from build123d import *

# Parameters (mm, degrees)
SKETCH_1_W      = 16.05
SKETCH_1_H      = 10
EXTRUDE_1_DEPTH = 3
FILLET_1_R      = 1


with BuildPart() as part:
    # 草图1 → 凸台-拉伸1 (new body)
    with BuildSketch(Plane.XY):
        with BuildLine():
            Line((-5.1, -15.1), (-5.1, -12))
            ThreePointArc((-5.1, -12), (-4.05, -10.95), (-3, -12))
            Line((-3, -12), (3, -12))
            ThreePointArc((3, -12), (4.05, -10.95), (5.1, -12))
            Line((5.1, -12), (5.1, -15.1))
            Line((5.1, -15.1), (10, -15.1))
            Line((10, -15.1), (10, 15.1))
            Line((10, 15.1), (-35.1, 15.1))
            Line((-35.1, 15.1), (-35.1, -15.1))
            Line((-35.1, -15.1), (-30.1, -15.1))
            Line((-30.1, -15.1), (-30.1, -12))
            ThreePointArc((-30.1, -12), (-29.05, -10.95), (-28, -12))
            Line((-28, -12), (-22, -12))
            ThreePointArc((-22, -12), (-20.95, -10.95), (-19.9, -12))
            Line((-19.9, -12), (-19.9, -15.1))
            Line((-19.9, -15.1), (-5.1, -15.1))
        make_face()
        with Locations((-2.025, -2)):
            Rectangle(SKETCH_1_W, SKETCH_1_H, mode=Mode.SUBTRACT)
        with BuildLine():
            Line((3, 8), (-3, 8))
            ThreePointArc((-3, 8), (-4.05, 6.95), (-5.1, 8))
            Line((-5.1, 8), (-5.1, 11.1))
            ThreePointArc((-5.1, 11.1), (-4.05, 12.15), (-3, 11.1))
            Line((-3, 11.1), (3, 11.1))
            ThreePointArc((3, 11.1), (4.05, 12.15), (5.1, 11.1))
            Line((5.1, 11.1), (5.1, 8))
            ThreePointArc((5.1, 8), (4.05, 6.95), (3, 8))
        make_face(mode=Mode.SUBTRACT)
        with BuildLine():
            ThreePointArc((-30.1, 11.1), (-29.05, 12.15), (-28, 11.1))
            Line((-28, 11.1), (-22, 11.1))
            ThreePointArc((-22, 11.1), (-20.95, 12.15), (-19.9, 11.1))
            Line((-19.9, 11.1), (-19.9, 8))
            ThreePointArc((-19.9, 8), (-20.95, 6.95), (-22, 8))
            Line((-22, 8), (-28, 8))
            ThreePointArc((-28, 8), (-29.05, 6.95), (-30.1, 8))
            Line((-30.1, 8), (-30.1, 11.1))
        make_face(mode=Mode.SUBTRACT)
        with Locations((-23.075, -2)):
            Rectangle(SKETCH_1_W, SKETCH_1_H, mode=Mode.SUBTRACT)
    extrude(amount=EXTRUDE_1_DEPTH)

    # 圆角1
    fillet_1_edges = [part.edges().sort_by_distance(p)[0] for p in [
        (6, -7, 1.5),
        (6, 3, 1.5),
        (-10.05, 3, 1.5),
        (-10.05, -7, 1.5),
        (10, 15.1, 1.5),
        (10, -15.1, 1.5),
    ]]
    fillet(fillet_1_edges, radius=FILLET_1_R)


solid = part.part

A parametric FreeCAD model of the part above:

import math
import FreeCAD as App
import Part
import Sketcher
Q = App.Units.Quantity


def edges_at(feature, points):
    """Names of the edges that pass closest to the given points."""
    edges = feature.Shape.Edges
    near = lambda p: min(range(len(edges)), key=lambda i: edges[i].distToShape(Part.Vertex(*p))[0])
    return sorted({f"Edge{near(p) + 1}" for p in points})

doc = App.newDocument("Part")
body = doc.addObject("PartDesign::Body", "Body")

sketch1 = body.newObject("Sketcher::SketchObject", "Sketch")
sketch1.AttachmentSupport = (doc.getObject("XY_Plane"), [""])
sketch1.MapMode = "FlatFace"
sketch1.addGeometry(Part.LineSegment(App.Vector(-5.1, -15.1, 0), App.Vector(-5.1, -12, 0)), False)
sketch1.addGeometry(Part.ArcOfCircle(Part.Circle(App.Vector(-4, -12, 0), App.Vector(0, 0, 1), 1.1), math.radians(0), math.radians(180)), False)
sketch1.addGeometry(Part.LineSegment(App.Vector(-3, -12, 0), App.Vector(3, -12, 0)), False)
sketch1.addGeometry(Part.ArcOfCircle(Part.Circle(App.Vector(4, -12, 0), App.Vector(0, 0, 1), 1.1), math.radians(0), math.radians(180)), False)
sketch1.addGeometry(Part.LineSegment(App.Vector(5.1, -12, 0), App.Vector(5.1, -15.1, 0)), False)
sketch1.addGeometry(Part.LineSegment(App.Vector(5.1, -15.1, 0), App.Vector(10, -15.1, 0)), False)
sketch1.addGeometry(Part.LineSegment(App.Vector(10, -15.1, 0), App.Vector(10, 15.1, 0)), False)
sketch1.addGeometry(Part.LineSegment(App.Vector(10, 15.1, 0), App.Vector(-35.1, 15.1, 0)), False)
sketch1.addGeometry(Part.LineSegment(App.Vector(-35.1, 15.1, 0), App.Vector(-35.1, -15.1, 0)), False)
sketch1.addGeometry(Part.LineSegment(App.Vector(-35.1, -15.1, 0), App.Vector(-30.1, -15.1, 0)), False)
sketch1.addGeometry(Part.LineSegment(App.Vector(-30.1, -15.1, 0), App.Vector(-30.1, -12, 0)), False)
sketch1.addGeometry(Part.ArcOfCircle(Part.Circle(App.Vector(-29.1, -12, 0), App.Vector(0, 0, 1), 1.1), math.radians(0), math.radians(180)), False)
sketch1.addGeometry(Part.LineSegment(App.Vector(-28, -12, 0), App.Vector(-22, -12, 0)), False)
sketch1.addGeometry(Part.ArcOfCircle(Part.Circle(App.Vector(-20.9, -12, 0), App.Vector(0, 0, 1), 1.1), math.radians(0), math.radians(180)), False)
sketch1.addGeometry(Part.LineSegment(App.Vector(-19.9, -12, 0), App.Vector(-19.9, -15.1, 0)), False)
sketch1.addGeometry(Part.LineSegment(App.Vector(-19.9, -15.1, 0), App.Vector(-5.1, -15.1, 0)), False)
sketch1.addGeometry(Part.LineSegment(App.Vector(-15.1, -7, 0), App.Vector(-31.1, -7, 0)), False)
sketch1.addGeometry(Part.LineSegment(App.Vector(-31.1, -7, 0), App.Vector(-31.1, 3, 0)), False)
sketch1.addGeometry(Part.LineSegment(App.Vector(-31.1, 3, 0), App.Vector(-15.1, 3, 0)), False)
sketch1.addGeometry(Part.LineSegment(App.Vector(-15.1, 3, 0), App.Vector(-15.1, -7, 0)), False)
sketch1.addGeometry(Part.LineSegment(App.Vector(6, -7, 0), App.Vector(-10.1, -7, 0)), False)
sketch1.addGeometry(Part.LineSegment(App.Vector(-10.1, -7, 0), App.Vector(-10.1, 3, 0)), False)
sketch1.addGeometry(Part.LineSegment(App.Vector(-10.1, 3, 0), App.Vector(6, 3, 0)), False)
sketch1.addGeometry(Part.LineSegment(App.Vector(6, 3, 0), App.Vector(6, -7, 0)), False)
sketch1.addGeometry(Part.LineSegment(App.Vector(-30.1, 8, 0), App.Vector(-30.1, 11.1, 0)), False)
sketch1.addGeometry(Part.ArcOfCircle(Part.Circle(App.Vector(-29.1, 11.1, 0), App.Vector(0, 0, 1), 1.1), math.radians(0), math.radians(180)), False)
sketch1.addGeometry(Part.LineSegment(App.Vector(-28, 11.1, 0), App.Vector(-22, 11.1, 0)), False)
sketch1.addGeometry(Part.ArcOfCircle(Part.Circle(App.Vector(-20.9, 11.1, 0), App.Vector(0, 0, 1), 1.1), math.radians(0), math.radians(180)), False)
sketch1.addGeometry(Part.LineSegment(App.Vector(-19.9, 11.1, 0), App.Vector(-19.9, 8, 0)), False)
sketch1.addGeometry(Part.ArcOfCircle(Part.Circle(App.Vector(-20.9, 8, 0), App.Vector(0, 0, 1), 1.1), math.radians(180), math.radians(360)), False)
sketch1.addGeometry(Part.LineSegment(App.Vector(-22, 8, 0), App.Vector(-28, 8, 0)), False)
sketch1.addGeometry(Part.ArcOfCircle(Part.Circle(App.Vector(-29.1, 8, 0), App.Vector(0, 0, 1), 1.1), math.radians(180), math.radians(360)), False)
sketch1.addGeometry(Part.ArcOfCircle(Part.Circle(App.Vector(4, 8, 0), App.Vector(0, 0, 1), 1.1), math.radians(180), math.radians(360)), False)
sketch1.addGeometry(Part.LineSegment(App.Vector(3, 8, 0), App.Vector(-3, 8, 0)), False)
sketch1.addGeometry(Part.ArcOfCircle(Part.Circle(App.Vector(-4, 8, 0), App.Vector(0, 0, 1), 1.1), math.radians(180), math.radians(360)), False)
sketch1.addGeometry(Part.LineSegment(App.Vector(-5.1, 8, 0), App.Vector(-5.1, 11.1, 0)), False)
sketch1.addGeometry(Part.ArcOfCircle(Part.Circle(App.Vector(-4, 11.1, 0), App.Vector(0, 0, 1), 1.1), math.radians(0), math.radians(180)), False)
sketch1.addGeometry(Part.LineSegment(App.Vector(-3, 11.1, 0), App.Vector(3, 11.1, 0)), False)
sketch1.addGeometry(Part.ArcOfCircle(Part.Circle(App.Vector(4, 11.1, 0), App.Vector(0, 0, 1), 1.1), math.radians(0), math.radians(180)), False)
sketch1.addGeometry(Part.LineSegment(App.Vector(5.1, 11.1, 0), App.Vector(5.1, 8, 0)), False)
sketch1.addConstraint(Sketcher.Constraint("Tangent", 0, 2, 1, 2))
sketch1.addConstraint(Sketcher.Constraint("Coincident", 1, 1, 2, 1))
sketch1.addConstraint(Sketcher.Constraint("Coincident", 2, 2, 3, 2))
sketch1.addConstraint(Sketcher.Constraint("Tangent", 3, 1, 4, 1))
sketch1.addConstraint(Sketcher.Constraint("Coincident", 4, 2, 5, 1))
sketch1.addConstraint(Sketcher.Constraint("Coincident", 5, 2, 6, 1))
sketch1.addConstraint(Sketcher.Constraint("Coincident", 6, 2, 7, 1))
sketch1.addConstraint(Sketcher.Constraint("Coincident", 7, 2, 8, 1))
sketch1.addConstraint(Sketcher.Constraint("Coincident", 8, 2, 9, 1))
sketch1.addConstraint(Sketcher.Constraint("Coincident", 9, 2, 10, 1))
sketch1.addConstraint(Sketcher.Constraint("Tangent", 10, 2, 11, 2))
sketch1.addConstraint(Sketcher.Constraint("Coincident", 11, 1, 12, 1))
sketch1.addConstraint(Sketcher.Constraint("Coincident", 12, 2, 13, 2))
sketch1.addConstraint(Sketcher.Constraint("Tangent", 13, 1, 14, 1))
sketch1.addConstraint(Sketcher.Constraint("Coincident", 14, 2, 15, 1))
sketch1.addConstraint(Sketcher.Constraint("Coincident", 15, 2, 0, 1))
sketch1.addConstraint(Sketcher.Constraint("Coincident", 16, 2, 17, 1))
sketch1.addConstraint(Sketcher.Constraint("Coincident", 17, 2, 18, 1))
sketch1.addConstraint(Sketcher.Constraint("Coincident", 18, 2, 19, 1))
sketch1.addConstraint(Sketcher.Constraint("Coincident", 19, 2, 16, 1))
sketch1.addConstraint(Sketcher.Constraint("Coincident", 20, 2, 21, 1))
sketch1.addConstraint(Sketcher.Constraint("Coincident", 21, 2, 22, 1))
sketch1.addConstraint(Sketcher.Constraint("Coincident", 22, 2, 23, 1))
sketch1.addConstraint(Sketcher.Constraint("Coincident", 23, 2, 20, 1))
sketch1.addConstraint(Sketcher.Constraint("Tangent", 24, 2, 25, 2))
sketch1.addConstraint(Sketcher.Constraint("Coincident", 25, 1, 26, 1))
sketch1.addConstraint(Sketcher.Constraint("Coincident", 26, 2, 27, 2))
sketch1.addConstraint(Sketcher.Constraint("Tangent", 27, 1, 28, 1))
sketch1.addConstraint(Sketcher.Constraint("Tangent", 28, 2, 29, 2))
sketch1.addConstraint(Sketcher.Constraint("Coincident", 29, 1, 30, 1))
sketch1.addConstraint(Sketcher.Constraint("Coincident", 30, 2, 31, 2))
sketch1.addConstraint(Sketcher.Constraint("Tangent", 31, 1, 24, 1))
sketch1.addConstraint(Sketcher.Constraint("Coincident", 32, 1, 33, 1))
sketch1.addConstraint(Sketcher.Constraint("Coincident", 33, 2, 34, 2))
sketch1.addConstraint(Sketcher.Constraint("Tangent", 34, 1, 35, 1))
sketch1.addConstraint(Sketcher.Constraint("Tangent", 35, 2, 36, 2))
sketch1.addConstraint(Sketcher.Constraint("Coincident", 36, 1, 37, 1))
sketch1.addConstraint(Sketcher.Constraint("Coincident", 37, 2, 38, 2))
sketch1.addConstraint(Sketcher.Constraint("Tangent", 38, 1, 39, 1))
sketch1.addConstraint(Sketcher.Constraint("Tangent", 39, 2, 32, 2))
sketch1.addConstraint(Sketcher.Constraint("Vertical", 0))
sketch1.addConstraint(Sketcher.Constraint("Horizontal", 2))
sketch1.addConstraint(Sketcher.Constraint("Vertical", 4))
sketch1.addConstraint(Sketcher.Constraint("Horizontal", 5))
sketch1.addConstraint(Sketcher.Constraint("Vertical", 6))
sketch1.addConstraint(Sketcher.Constraint("Horizontal", 7))
sketch1.addConstraint(Sketcher.Constraint("Vertical", 8))
sketch1.addConstraint(Sketcher.Constraint("Horizontal", 9))
sketch1.addConstraint(Sketcher.Constraint("Vertical", 10))
sketch1.addConstraint(Sketcher.Constraint("Horizontal", 12))
sketch1.addConstraint(Sketcher.Constraint("Vertical", 14))
sketch1.addConstraint(Sketcher.Constraint("Horizontal", 15))
sketch1.addConstraint(Sketcher.Constraint("Horizontal", 16))
sketch1.addConstraint(Sketcher.Constraint("Vertical", 17))
sketch1.addConstraint(Sketcher.Constraint("Horizontal", 18))
sketch1.addConstraint(Sketcher.Constraint("Vertical", 19))
sketch1.addConstraint(Sketcher.Constraint("Horizontal", 20))
sketch1.addConstraint(Sketcher.Constraint("Vertical", 21))
sketch1.addConstraint(Sketcher.Constraint("Horizontal", 22))
sketch1.addConstraint(Sketcher.Constraint("Vertical", 23))
sketch1.addConstraint(Sketcher.Constraint("Vertical", 24))
sketch1.addConstraint(Sketcher.Constraint("Horizontal", 26))
sketch1.addConstraint(Sketcher.Constraint("Vertical", 28))
sketch1.addConstraint(Sketcher.Constraint("Horizontal", 30))
sketch1.addConstraint(Sketcher.Constraint("Horizontal", 33))
sketch1.addConstraint(Sketcher.Constraint("Vertical", 35))
sketch1.addConstraint(Sketcher.Constraint("Horizontal", 37))
sketch1.addConstraint(Sketcher.Constraint("Vertical", 39))
sketch1.addConstraint(Sketcher.Constraint("Equal", 1, 3))
sketch1.addConstraint(Sketcher.Constraint("Equal", 3, 11))
sketch1.addConstraint(Sketcher.Constraint("Equal", 11, 13))
sketch1.addConstraint(Sketcher.Constraint("Equal", 13, 25))
sketch1.addConstraint(Sketcher.Constraint("Equal", 25, 27))
sketch1.addConstraint(Sketcher.Constraint("Equal", 27, 29))
sketch1.addConstraint(Sketcher.Constraint("Equal", 29, 31))
sketch1.addConstraint(Sketcher.Constraint("Equal", 31, 32))
sketch1.addConstraint(Sketcher.Constraint("Equal", 32, 34))
sketch1.addConstraint(Sketcher.Constraint("Equal", 34, 36))
sketch1.addConstraint(Sketcher.Constraint("Equal", 36, 38))
sketch1.addConstraint(Sketcher.Constraint("Symmetric", 1, 3, 3, 3, -2))
sketch1.addConstraint(Sketcher.Constraint("Symmetric", 32, 3, 34, 3, -2))
sketch1.addConstraint(Sketcher.Constraint("Horizontal", 3, 3, 11, 3))
sketch1.addConstraint(Sketcher.Constraint("Horizontal", 11, 3, 13, 3))
sketch1.addConstraint(Sketcher.Constraint("Horizontal", 25, 3, 27, 3))
sketch1.addConstraint(Sketcher.Constraint("Horizontal", 29, 3, 31, 3))
sketch1.addConstraint(Sketcher.Constraint("Horizontal", 31, 3, 32, 3))
sketch1.addConstraint(Sketcher.Constraint("Horizontal", 27, 3, 36, 3))
sketch1.addConstraint(Sketcher.Constraint("Horizontal", 36, 3, 38, 3))
sketch1.addConstraint(Sketcher.Constraint("Horizontal", 0, 2, 1, 1))
sketch1.addConstraint(Sketcher.Constraint("Horizontal", 5, 2, 8, 2))
sketch1.addConstraint(Sketcher.Constraint("Horizontal", 10, 2, 11, 1))
sketch1.addConstraint(Sketcher.Constraint("Horizontal", 9, 2, 14, 2))
sketch1.addConstraint(Sketcher.Constraint("Horizontal", 19, 2, 20, 2))
sketch1.addConstraint(Sketcher.Constraint("Horizontal", 18, 2, 21, 2))
sketch1.addConstraint(Sketcher.Constraint("Horizontal", 24, 2, 25, 1))
sketch1.addConstraint(Sketcher.Constraint("Horizontal", 28, 2, 29, 1))
sketch1.addConstraint(Sketcher.Constraint("Horizontal", 31, 1, 32, 1))
sketch1.addConstraint(Sketcher.Constraint("Horizontal", 35, 2, 36, 1))
sketch1.addConstraint(Sketcher.Constraint("Vertical", 11, 3, 25, 3))
sketch1.addConstraint(Sketcher.Constraint("Vertical", 13, 3, 27, 3))
sketch1.addConstraint(Sketcher.Constraint("Vertical", 3, 3, 32, 3))
sketch1.addConstraint(Sketcher.Constraint("Equal", 2, 12))
sketch1.addConstraint(Sketcher.Constraint("Equal", 18, 20))
sketch1.addConstraint(Sketcher.Constraint("Equal", 14, 24))
sketch1.addConstraint(Sketcher.Constraint("DistanceX", 2, 1, 2, 2, Q("6 mm")))
sketch1.addConstraint(Sketcher.Constraint("DistanceX", 9, 1, 9, 2, Q("5 mm")))
sketch1.addConstraint(Sketcher.Constraint("DistanceY", 17, 1, 17, 2, Q("10 mm")))
sketch1.addConstraint(Sketcher.Constraint("Radius", 1, Q("1.05 mm")))
sketch1.addConstraint(Sketcher.Constraint("DistanceX", 5, 1, 5, 2, Q("4.9 mm")))
sketch1.addConstraint(Sketcher.Constraint("DistanceX", 7, 2, 7, 1, Q("45.1 mm")))
sketch1.addConstraint(Sketcher.Constraint("DistanceY", 0, 1, 0, 2, Q("3.1 mm")))
sketch1.addConstraint(Sketcher.Constraint("DistanceY", 6, 1, 6, 2, Q("30.2 mm")))
sketch1.addConstraint(Sketcher.Constraint("DistanceY", 1, 3, -1, 1, Q("12 mm")))
sketch1.addConstraint(Sketcher.Constraint("DistanceY", -1, 1, 29, 3, Q("8 mm")))
sketch1.addConstraint(Sketcher.Constraint("DistanceY", 16, 2, -1, 1, Q("7 mm")))
sketch1.addConstraint(Sketcher.Constraint("DistanceX", -1, 1, 22, 2, Q("6 mm")))
sketch1.addConstraint(Sketcher.Constraint("DistanceX", 16, 2, 10, 2, Q("1 mm")))
sketch1.addConstraint(Sketcher.Constraint("DistanceX", 18, 2, 34, 3, Q("11 mm")))
pad1 = body.newObject("PartDesign::Pad", "Pad")
pad1.Profile = sketch1
pad1.Length = 3
doc.recompute()

fillet = body.newObject("PartDesign::Fillet", "Fillet")
fillet.Base = (pad1, edges_at(pad1, [
    (6, -7, 1.5),
    (6, 3, 1.5),
    (-10.05, 3, 1.5),
    (-10.05, -7, 1.5),
    (10, 15.1, 1.5),
    (10, -15.1, 1.5),
]))
fillet.Radius = 1

doc.recompute()
